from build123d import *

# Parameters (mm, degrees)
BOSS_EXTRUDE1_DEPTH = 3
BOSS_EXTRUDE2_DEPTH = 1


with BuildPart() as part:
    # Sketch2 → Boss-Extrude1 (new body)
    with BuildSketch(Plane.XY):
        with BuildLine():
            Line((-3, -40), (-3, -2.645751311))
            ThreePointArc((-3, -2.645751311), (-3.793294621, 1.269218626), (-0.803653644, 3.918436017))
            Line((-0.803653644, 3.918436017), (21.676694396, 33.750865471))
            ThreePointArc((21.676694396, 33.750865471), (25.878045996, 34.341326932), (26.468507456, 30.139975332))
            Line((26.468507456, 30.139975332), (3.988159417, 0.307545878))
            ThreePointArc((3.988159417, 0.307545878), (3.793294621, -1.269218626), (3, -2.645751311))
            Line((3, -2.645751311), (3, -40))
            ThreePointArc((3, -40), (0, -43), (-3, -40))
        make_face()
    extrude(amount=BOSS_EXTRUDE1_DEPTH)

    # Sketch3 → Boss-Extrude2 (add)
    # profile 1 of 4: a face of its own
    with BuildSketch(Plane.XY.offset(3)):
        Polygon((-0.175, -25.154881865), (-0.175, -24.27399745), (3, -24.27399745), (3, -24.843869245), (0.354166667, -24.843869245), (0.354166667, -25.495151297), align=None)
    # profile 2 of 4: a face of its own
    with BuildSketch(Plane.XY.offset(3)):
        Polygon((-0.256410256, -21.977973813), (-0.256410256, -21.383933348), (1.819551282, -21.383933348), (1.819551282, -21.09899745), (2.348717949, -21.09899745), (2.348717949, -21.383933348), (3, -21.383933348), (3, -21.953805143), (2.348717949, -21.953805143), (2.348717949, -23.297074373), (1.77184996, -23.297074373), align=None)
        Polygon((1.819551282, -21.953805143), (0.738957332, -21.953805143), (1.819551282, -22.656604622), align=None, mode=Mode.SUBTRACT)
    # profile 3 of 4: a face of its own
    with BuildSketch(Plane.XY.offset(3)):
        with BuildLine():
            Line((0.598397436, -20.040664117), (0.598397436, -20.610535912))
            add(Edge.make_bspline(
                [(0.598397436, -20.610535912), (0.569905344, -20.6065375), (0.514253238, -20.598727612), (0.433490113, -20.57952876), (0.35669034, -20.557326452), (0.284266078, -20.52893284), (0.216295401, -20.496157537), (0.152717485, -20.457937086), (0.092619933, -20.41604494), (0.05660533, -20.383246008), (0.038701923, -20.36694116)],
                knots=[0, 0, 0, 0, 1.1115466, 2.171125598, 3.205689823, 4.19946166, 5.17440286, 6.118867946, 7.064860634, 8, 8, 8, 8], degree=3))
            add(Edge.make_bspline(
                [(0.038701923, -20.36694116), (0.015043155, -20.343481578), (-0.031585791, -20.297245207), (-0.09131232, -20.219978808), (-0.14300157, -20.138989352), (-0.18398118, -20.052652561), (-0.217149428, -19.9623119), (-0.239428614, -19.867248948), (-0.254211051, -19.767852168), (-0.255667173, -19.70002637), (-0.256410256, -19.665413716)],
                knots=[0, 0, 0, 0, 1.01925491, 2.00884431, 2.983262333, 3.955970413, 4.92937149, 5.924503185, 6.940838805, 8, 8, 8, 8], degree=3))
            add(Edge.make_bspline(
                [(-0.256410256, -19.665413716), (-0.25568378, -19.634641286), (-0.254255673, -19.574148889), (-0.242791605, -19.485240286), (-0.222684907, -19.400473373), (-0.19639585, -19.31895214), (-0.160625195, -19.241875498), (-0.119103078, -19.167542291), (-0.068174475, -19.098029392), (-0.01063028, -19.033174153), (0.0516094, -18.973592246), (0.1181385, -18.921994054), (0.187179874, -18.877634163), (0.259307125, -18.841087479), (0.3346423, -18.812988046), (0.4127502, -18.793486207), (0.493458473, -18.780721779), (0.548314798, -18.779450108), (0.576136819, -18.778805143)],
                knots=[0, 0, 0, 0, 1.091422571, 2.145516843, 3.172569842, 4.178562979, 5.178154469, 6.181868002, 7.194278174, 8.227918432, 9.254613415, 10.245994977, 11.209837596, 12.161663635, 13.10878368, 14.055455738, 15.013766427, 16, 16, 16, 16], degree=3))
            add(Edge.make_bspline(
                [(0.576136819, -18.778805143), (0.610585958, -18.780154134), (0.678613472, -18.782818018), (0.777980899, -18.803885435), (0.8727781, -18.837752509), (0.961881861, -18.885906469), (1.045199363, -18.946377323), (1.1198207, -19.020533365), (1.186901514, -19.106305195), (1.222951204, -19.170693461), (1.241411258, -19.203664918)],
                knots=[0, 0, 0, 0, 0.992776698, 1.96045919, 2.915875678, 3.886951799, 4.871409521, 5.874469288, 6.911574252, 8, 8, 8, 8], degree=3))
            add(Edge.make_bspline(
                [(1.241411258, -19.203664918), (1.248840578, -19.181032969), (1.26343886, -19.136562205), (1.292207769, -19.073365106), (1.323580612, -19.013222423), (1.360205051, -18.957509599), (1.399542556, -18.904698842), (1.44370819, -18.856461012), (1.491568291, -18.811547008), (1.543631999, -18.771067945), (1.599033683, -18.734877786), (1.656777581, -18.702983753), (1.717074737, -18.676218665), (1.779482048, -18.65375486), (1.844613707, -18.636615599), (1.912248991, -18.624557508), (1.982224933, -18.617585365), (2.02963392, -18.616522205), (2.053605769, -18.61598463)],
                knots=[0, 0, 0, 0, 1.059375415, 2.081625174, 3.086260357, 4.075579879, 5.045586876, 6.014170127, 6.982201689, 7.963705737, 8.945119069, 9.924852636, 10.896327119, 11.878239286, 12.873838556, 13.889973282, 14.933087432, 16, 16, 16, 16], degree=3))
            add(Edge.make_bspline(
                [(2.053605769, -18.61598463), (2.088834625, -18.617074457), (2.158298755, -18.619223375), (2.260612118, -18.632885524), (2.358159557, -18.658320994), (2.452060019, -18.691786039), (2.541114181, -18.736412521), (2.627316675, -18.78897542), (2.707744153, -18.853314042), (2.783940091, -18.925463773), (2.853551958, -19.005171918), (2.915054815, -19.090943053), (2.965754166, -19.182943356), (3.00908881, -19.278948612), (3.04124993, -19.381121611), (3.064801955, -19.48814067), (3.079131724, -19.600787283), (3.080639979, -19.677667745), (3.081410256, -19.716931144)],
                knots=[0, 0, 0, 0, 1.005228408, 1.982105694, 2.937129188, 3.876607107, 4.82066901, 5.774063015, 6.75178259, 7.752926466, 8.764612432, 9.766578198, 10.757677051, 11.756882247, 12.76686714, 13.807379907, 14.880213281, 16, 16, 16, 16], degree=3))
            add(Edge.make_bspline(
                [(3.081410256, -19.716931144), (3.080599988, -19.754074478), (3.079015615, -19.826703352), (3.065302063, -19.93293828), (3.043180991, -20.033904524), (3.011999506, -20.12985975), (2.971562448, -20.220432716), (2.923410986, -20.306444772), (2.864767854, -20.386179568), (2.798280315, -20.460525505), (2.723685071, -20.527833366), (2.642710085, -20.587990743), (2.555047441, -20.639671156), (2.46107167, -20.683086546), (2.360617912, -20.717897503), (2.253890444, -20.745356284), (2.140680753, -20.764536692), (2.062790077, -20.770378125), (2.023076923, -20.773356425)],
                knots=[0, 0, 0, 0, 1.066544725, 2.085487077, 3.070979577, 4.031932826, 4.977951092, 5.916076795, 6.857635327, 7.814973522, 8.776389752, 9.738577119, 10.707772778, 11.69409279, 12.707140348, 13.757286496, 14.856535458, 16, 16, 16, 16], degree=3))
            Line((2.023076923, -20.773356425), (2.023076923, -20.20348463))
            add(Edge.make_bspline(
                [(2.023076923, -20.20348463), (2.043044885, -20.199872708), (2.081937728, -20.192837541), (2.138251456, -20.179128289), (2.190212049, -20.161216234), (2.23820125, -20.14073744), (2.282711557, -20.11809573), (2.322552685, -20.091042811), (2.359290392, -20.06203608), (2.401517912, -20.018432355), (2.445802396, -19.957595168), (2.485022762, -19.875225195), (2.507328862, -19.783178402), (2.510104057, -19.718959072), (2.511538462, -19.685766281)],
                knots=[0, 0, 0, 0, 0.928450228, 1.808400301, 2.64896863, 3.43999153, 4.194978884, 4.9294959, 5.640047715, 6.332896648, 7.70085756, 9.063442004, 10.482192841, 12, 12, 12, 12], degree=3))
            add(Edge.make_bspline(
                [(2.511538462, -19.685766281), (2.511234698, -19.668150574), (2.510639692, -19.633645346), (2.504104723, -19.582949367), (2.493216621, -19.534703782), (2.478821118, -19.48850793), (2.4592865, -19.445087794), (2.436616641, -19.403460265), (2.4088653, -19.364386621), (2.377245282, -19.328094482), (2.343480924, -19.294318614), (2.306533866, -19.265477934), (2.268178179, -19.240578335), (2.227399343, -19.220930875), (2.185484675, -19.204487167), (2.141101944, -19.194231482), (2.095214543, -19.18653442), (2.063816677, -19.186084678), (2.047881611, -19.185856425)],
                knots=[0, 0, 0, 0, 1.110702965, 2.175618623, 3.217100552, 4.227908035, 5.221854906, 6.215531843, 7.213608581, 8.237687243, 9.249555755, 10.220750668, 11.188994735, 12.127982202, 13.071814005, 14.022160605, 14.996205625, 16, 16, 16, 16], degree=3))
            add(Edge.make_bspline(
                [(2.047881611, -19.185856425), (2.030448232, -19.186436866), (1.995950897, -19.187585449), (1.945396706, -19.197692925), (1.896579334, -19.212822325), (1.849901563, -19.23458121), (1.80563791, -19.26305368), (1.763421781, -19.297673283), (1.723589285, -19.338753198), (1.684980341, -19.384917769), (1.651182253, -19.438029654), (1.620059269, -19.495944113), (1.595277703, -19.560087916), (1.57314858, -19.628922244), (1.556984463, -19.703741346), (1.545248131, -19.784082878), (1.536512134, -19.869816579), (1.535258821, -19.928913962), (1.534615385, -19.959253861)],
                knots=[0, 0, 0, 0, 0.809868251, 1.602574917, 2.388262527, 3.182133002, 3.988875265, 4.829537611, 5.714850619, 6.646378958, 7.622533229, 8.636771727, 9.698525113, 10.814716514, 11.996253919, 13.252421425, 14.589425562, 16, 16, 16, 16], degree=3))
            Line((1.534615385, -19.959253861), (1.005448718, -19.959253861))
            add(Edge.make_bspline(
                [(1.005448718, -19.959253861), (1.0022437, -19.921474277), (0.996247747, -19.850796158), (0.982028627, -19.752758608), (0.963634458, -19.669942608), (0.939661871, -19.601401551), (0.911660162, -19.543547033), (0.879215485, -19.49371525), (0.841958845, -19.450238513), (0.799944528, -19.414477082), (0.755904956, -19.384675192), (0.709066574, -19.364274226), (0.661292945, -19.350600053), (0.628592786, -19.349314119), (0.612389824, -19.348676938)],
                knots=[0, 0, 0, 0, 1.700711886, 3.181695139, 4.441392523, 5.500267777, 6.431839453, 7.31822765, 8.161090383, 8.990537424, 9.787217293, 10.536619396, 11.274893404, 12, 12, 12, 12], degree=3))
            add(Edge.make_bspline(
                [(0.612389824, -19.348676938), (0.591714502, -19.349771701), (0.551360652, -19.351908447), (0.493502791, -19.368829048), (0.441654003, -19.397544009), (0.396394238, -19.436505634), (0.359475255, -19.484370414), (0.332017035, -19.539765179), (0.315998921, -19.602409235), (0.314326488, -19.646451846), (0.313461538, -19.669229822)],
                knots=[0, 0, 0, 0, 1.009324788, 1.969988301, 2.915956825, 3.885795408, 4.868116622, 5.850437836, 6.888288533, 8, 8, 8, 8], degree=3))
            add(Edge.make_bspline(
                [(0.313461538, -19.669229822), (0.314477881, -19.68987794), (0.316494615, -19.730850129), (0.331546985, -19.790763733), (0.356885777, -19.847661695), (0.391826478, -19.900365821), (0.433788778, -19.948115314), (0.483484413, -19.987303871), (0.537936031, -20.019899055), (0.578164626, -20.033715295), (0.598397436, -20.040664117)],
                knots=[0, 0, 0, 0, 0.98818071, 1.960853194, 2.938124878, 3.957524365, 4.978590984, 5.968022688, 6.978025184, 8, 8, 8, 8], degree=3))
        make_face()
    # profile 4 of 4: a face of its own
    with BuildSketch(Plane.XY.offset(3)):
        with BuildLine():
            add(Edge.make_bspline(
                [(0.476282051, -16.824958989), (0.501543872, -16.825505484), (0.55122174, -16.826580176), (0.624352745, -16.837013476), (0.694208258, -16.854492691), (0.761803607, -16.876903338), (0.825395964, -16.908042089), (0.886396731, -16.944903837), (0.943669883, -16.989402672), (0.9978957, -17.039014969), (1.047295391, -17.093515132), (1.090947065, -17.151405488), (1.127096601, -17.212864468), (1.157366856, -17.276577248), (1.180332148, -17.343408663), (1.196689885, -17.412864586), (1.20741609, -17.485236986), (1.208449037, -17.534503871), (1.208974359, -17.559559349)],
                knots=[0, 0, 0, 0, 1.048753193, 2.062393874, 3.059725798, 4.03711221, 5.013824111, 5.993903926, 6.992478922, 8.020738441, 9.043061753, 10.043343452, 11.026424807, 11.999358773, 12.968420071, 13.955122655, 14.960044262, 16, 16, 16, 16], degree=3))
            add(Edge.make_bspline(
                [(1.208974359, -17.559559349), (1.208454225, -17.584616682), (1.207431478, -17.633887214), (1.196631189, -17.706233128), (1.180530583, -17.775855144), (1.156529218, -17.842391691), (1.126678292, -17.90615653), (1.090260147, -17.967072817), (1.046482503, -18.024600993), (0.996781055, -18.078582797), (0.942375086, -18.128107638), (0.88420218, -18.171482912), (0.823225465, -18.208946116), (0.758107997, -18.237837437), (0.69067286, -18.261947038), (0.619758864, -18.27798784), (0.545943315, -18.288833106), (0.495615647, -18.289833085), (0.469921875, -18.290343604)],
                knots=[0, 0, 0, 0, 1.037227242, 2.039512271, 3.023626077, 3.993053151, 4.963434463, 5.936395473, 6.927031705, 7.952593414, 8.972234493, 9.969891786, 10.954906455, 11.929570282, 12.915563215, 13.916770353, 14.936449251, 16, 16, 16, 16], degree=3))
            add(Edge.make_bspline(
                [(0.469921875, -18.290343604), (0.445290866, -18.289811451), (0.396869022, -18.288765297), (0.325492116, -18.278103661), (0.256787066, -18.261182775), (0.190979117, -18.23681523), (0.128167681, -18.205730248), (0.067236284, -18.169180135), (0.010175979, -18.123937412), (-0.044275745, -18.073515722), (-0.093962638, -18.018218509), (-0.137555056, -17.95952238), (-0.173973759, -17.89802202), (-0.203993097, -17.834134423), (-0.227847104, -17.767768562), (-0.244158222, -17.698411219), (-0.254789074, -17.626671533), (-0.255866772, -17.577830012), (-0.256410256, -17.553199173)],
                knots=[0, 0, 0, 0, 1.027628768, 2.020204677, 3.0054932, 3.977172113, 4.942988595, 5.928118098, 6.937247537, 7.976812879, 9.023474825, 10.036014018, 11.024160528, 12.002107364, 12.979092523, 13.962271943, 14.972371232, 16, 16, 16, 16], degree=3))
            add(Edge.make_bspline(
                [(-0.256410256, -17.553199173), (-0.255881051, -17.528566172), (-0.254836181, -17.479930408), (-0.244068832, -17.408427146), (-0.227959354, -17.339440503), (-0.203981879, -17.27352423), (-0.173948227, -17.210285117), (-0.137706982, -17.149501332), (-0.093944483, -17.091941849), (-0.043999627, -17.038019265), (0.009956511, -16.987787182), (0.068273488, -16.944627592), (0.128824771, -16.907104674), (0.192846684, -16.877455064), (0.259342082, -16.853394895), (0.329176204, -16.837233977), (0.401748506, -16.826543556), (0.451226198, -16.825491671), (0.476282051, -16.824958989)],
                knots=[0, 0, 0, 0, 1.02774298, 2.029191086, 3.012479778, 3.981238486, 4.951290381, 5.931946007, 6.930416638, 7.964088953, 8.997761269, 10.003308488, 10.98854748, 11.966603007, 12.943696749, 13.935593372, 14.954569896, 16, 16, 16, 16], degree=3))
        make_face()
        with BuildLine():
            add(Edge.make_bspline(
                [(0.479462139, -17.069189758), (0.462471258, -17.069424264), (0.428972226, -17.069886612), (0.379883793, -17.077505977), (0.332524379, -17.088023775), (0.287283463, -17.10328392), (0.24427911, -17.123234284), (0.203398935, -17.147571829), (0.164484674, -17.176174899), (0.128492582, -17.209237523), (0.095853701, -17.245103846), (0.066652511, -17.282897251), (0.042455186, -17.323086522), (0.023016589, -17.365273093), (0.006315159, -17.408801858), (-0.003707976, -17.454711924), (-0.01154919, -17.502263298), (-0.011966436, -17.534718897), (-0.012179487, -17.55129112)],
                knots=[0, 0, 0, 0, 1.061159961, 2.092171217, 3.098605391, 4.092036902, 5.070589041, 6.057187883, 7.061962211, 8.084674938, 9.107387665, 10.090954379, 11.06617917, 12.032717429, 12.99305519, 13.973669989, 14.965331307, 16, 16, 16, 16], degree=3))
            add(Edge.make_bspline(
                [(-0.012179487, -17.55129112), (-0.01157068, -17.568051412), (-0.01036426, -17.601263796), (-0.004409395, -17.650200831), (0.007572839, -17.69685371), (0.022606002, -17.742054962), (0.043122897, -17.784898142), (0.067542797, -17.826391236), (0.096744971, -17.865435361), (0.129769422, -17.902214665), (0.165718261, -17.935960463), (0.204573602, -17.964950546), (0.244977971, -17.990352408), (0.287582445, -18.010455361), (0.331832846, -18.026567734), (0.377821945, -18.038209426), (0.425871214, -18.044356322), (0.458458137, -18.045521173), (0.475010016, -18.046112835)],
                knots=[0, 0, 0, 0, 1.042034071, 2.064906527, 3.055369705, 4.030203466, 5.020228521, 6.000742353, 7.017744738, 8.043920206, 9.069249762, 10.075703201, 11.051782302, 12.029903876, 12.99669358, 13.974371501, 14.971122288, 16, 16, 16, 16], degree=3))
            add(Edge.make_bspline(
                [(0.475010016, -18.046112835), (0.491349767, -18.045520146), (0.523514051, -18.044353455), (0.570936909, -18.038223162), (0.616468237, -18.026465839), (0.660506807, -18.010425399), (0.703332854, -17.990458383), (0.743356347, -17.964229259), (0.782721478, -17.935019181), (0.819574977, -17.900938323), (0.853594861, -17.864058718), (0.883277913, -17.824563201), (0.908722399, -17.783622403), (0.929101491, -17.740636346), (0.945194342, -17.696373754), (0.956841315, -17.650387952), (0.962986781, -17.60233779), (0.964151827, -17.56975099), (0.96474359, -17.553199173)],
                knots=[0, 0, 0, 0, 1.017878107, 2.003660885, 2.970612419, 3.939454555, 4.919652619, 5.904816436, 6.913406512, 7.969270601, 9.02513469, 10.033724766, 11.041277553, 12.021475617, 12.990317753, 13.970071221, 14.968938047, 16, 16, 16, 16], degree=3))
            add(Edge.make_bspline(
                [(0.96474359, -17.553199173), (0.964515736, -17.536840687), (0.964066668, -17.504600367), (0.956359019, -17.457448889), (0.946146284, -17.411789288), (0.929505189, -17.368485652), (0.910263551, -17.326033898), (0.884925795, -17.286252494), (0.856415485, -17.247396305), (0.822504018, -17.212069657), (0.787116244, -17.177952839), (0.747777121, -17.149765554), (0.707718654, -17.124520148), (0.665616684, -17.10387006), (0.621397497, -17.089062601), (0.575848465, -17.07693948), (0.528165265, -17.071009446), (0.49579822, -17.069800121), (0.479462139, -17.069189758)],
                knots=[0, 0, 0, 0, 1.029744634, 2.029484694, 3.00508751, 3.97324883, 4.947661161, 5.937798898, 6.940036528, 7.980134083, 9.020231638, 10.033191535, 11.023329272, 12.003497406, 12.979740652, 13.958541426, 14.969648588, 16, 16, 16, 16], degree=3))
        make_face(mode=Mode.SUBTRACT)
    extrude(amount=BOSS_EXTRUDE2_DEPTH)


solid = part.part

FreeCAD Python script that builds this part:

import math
import FreeCAD as App
import Part
import Sketcher

V = App.Vector
Q = App.Units.Quantity

doc = App.newDocument("Part")
body = doc.addObject("PartDesign::Body", "Body")

sketch1 = body.newObject("Sketcher::SketchObject", "Sketch")
sketch1.AttachmentSupport = (doc.getObject("XY_Plane"), [""])
sketch1.MapMode = "FlatFace"
sketch1.addGeometry([
    Part.LineSegment(V(-3, -2.6, 0), V(-3, -40, 0)),
    Part.ArcOfCircle(Part.Circle(V(0, -40, 0), V(0, 0, 1), 3), math.radians(180), math.radians(360)),
    Part.LineSegment(V(3, -40, 0), V(3, -2.6, 0)),
    Part.ArcOfCircle(Part.Circle(V(0, 0, 0), V(0, 0, 1), 4), math.radians(-41), math.radians(4)),
    Part.LineSegment(V(4, 0.3, 0), V(26.5, 30.1, 0)),
    Part.ArcOfCircle(Part.Circle(V(24.1, 31.9, 0), V(0, 0, 1), 3), math.radians(-37), math.radians(143)),
    Part.LineSegment(V(21.7, 33.8, 0), V(-0.8, 3.9, 0)),
    Part.ArcOfCircle(Part.Circle(V(0, 0, 0), V(0, 0, 1), 4), math.radians(102), math.radians(221)),
], False)
sketch1.addConstraint([
    Sketcher.Constraint("Tangent", 0, 2, 1, 1),
    Sketcher.Constraint("Tangent", 1, 2, 2, 1),
    Sketcher.Constraint("Coincident", 2, 2, 3, 1),
    Sketcher.Constraint("Coincident", 3, 2, 4, 1),
    Sketcher.Constraint("Tangent", 4, 2, 5, 1),
    Sketcher.Constraint("Tangent", 5, 2, 6, 1),
    Sketcher.Constraint("Coincident", 6, 2, 7, 1),
    Sketcher.Constraint("Coincident", 7, 2, 0, 1),
    Sketcher.Constraint("Vertical", 0),
    Sketcher.Constraint("Vertical", 2),
    Sketcher.Constraint("Coincident", 3, 3, -1, 1),
    Sketcher.Constraint("Coincident", 7, 3, -1, 1),
    Sketcher.Constraint("Equal", 1, 5),
    Sketcher.Constraint("Equal", 3, 7),
    Sketcher.Constraint("PointOnObject", 1, 3, -2),
    Sketcher.Constraint("Parallel", 4, 6),
    Sketcher.Constraint("Equal", 4, 6),
    Sketcher.Constraint("Radius", 1, Q("3 mm")),
    Sketcher.Constraint("Radius", 3, Q("4 mm")),
    Sketcher.Constraint("Angle", 4, Q("53 deg")),
    Sketcher.Constraint("DistanceY", 1, 3, -1, 1, Q("40 mm")),
    Sketcher.Constraint("DistanceX", -1, 1, 5, 3, Q("24.072601 mm")),
])
pad1 = body.newObject("PartDesign::Pad", "Pad")
pad1.Profile = sketch1
pad1.Length = 3

sketch2 = body.newObject("Sketcher::SketchObject", "Sketch001")
sketch2.AttachmentSupport = (doc.getObject("XY_Plane"), [""])
sketch2.MapMode = "FlatFace"
sketch2.AttachmentOffset = App.Placement(V(0, 0, 3), App.Rotation())
sketch2.addGeometry([
    Part.LineSegment(V(-0.175, -24.273997, 0), V(-0.175, -25.154882, 0)),
    Part.LineSegment(V(-0.175, -25.154882, 0), V(0.354167, -25.495151, 0)),
    Part.LineSegment(V(0.354167, -25.495151, 0), V(0.354167, -24.843869, 0)),
    Part.LineSegment(V(0.354167, -24.843869, 0), V(3, -24.843869, 0)),
    Part.LineSegment(V(3, -24.843869, 0), V(3, -24.273997, 0)),
    Part.LineSegment(V(3, -24.273997, 0), V(-0.175, -24.273997, 0)),
    Part.LineSegment(V(-0.25641, -21.383933, 0), V(-0.25641, -21.977974, 0)),
    Part.LineSegment(V(-0.25641, -21.977974, 0), V(1.77185, -23.297074, 0)),
    Part.LineSegment(V(1.77185, -23.297074, 0), V(2.348718, -23.297074, 0)),
    Part.LineSegment(V(2.348718, -23.297074, 0), V(2.348718, -21.953805, 0)),
    Part.LineSegment(V(2.348718, -21.953805, 0), V(3, -21.953805, 0)),
    Part.LineSegment(V(3, -21.953805, 0), V(3, -21.383933, 0)),
    Part.LineSegment(V(3, -21.383933, 0), V(2.348718, -21.383933, 0)),
    Part.LineSegment(V(2.348718, -21.383933, 0), V(2.348718, -21.098997, 0)),
    Part.LineSegment(V(2.348718, -21.098997, 0), V(1.819551, -21.098997, 0)),
    Part.LineSegment(V(1.819551, -21.098997, 0), V(1.819551, -21.383933, 0)),
    Part.LineSegment(V(1.819551, -21.383933, 0), V(-0.25641, -21.383933, 0)),
    Part.LineSegment(V(1.819551, -21.953805, 0), V(1.819551, -22.656605, 0)),
    Part.LineSegment(V(1.819551, -22.656605, 0), V(0.738957, -21.953805, 0)),
    Part.LineSegment(V(0.738957, -21.953805, 0), V(1.819551, -21.953805, 0)),
    Part.LineSegment(V(0.598397, -20.610536, 0), V(0.598397, -20.040664, 0)),
    Part.BSplineCurve([V(0.313462, -19.66923, 0), V(0.314478, -19.689878, 0), V(0.316495, -19.73085, 0), V(0.331547, -19.790764, 0), V(0.356886, -19.847662, 0), V(0.391826, -19.900366, 0), V(0.433789, -19.948115, 0), V(0.483484, -19.987304, 0), V(0.537936, -20.019899, 0), V(0.578165, -20.033715, 0), V(0.598397, -20.040664, 0)], [4, 1, 1, 1, 1, 1, 1, 1, 4], [0, 0.98818071, 1.960853194, 2.938124878, 3.957524365, 4.978590984, 5.968022688, 6.978025184, 8], False, 3, [1, 1, 1, 1, 1, 1, 1, 1, 1, 1, 1], False),
    Part.BSplineCurve([V(0.61239, -19.348677, 0), V(0.591715, -19.349772, 0), V(0.551361, -19.351908, 0), V(0.493503, -19.368829, 0), V(0.441654, -19.397544, 0), V(0.396394, -19.436506, 0), V(0.359475, -19.48437, 0), V(0.332017, -19.539765, 0), V(0.315999, -19.602409, 0), V(0.314326, -19.646452, 0), V(0.313462, -19.66923, 0)], [4, 1, 1, 1, 1, 1, 1, 1, 4], [0, 1.009324788, 1.969988301, 2.915956825, 3.885795408, 4.868116622, 5.850437836, 6.888288533, 8], False, 3, [1, 1, 1, 1, 1, 1, 1, 1, 1, 1, 1], False),
    Part.BSplineCurve([V(1.005449, -19.959254, 0), V(1.002244, -19.921474, 0), V(0.996248, -19.850796, 0), V(0.982029, -19.752759, 0), V(0.963634, -19.669943, 0), V(0.939662, -19.601402, 0), V(0.91166, -19.543547, 0), V(0.879215, -19.493715, 0), V(0.841959, -19.450239, 0), V(0.799945, -19.414477, 0), V(0.755905, -19.384675, 0), V(0.709067, -19.364274, 0), V(0.661293, -19.3506, 0), V(0.628593, -19.349314, 0), V(0.61239, -19.348677, 0)], [4, 1, 1, 1, 1, 1, 1, 1, 1, 1, 1, 1, 4], [0, 1.700711886, 3.181695139, 4.441392523, 5.500267777, 6.431839453, 7.31822765, 8.161090383, 8.990537424, 9.787217293, 10.536619396, 11.274893404, 12], False, 3, [1, 1, 1, 1, 1, 1, 1, 1, 1, 1, 1, 1, 1, 1, 1], False),
    Part.LineSegment(V(1.005449, -19.959254, 0), V(1.534615, -19.959254, 0)),
    Part.BSplineCurve([V(2.047882, -19.185856, 0), V(2.030448, -19.186437, 0), V(1.995951, -19.187585, 0), V(1.945397, -19.197693, 0), V(1.896579, -19.212822, 0), V(1.849902, -19.234581, 0), V(1.805638, -19.263054, 0), V(1.763422, -19.297673, 0), V(1.723589, -19.338753, 0), V(1.68498, -19.384918, 0), V(1.651182, -19.43803, 0), V(1.620059, -19.495944, 0), V(1.595278, -19.560088, 0), V(1.573149, -19.628922, 0), V(1.556984, -19.703741, 0), V(1.545248, -19.784083, 0), V(1.536512, -19.869817, 0), V(1.535259, -19.928914, 0), V(1.534615, -19.959254, 0)], [4, 1, 1, 1, 1, 1, 1, 1, 1, 1, 1, 1, 1, 1, 1, 1, 4], [0, 0.809868251, 1.602574917, 2.388262527, 3.182133002, 3.988875265, 4.829537611, 5.714850619, 6.646378958, 7.622533229, 8.636771727, 9.698525113, 10.814716514, 11.996253919, 13.252421425, 14.589425562, 16], False, 3, [1, 1, 1, 1, 1, 1, 1, 1, 1, 1, 1, 1, 1, 1, 1, 1, 1, 1, 1], False),
    Part.BSplineCurve([V(2.511538, -19.685766, 0), V(2.511235, -19.668151, 0), V(2.51064, -19.633645, 0), V(2.504105, -19.582949, 0), V(2.493217, -19.534704, 0), V(2.478821, -19.488508, 0), V(2.459287, -19.445088, 0), V(2.436617, -19.40346, 0), V(2.408865, -19.364387, 0), V(2.377245, -19.328094, 0), V(2.343481, -19.294319, 0), V(2.306534, -19.265478, 0), V(2.268178, -19.240578, 0), V(2.227399, -19.220931, 0), V(2.185485, -19.204487, 0), V(2.141102, -19.194231, 0), V(2.095215, -19.186534, 0), V(2.063817, -19.186085, 0), V(2.047882, -19.185856, 0)], [4, 1, 1, 1, 1, 1, 1, 1, 1, 1, 1, 1, 1, 1, 1, 1, 4], [0, 1.110702965, 2.175618623, 3.217100552, 4.227908035, 5.221854906, 6.215531843, 7.213608581, 8.237687243, 9.249555755, 10.220750668, 11.188994735, 12.127982202, 13.071814005, 14.022160605, 14.996205625, 16], False, 3, [1, 1, 1, 1, 1, 1, 1, 1, 1, 1, 1, 1, 1, 1, 1, 1, 1, 1, 1], False),
    Part.BSplineCurve([V(2.023077, -20.203485, 0), V(2.043045, -20.199873, 0), V(2.081938, -20.192838, 0), V(2.138251, -20.179128, 0), V(2.190212, -20.161216, 0), V(2.238201, -20.140737, 0), V(2.282712, -20.118096, 0), V(2.322553, -20.091043, 0), V(2.35929, -20.062036, 0), V(2.401518, -20.018432, 0), V(2.445802, -19.957595, 0), V(2.485023, -19.875225, 0), V(2.507329, -19.783178, 0), V(2.510104, -19.718959, 0), V(2.511538, -19.685766, 0)], [4, 1, 1, 1, 1, 1, 1, 1, 1, 1, 1, 1, 4], [0, 0.928450228, 1.808400301, 2.64896863, 3.43999153, 4.194978884, 4.9294959, 5.640047715, 6.332896648, 7.70085756, 9.063442004, 10.482192841, 12], False, 3, [1, 1, 1, 1, 1, 1, 1, 1, 1, 1, 1, 1, 1, 1, 1], False),
    Part.LineSegment(V(2.023077, -20.203485, 0), V(2.023077, -20.773356, 0)),
    Part.BSplineCurve([V(3.08141, -19.716931, 0), V(3.0806, -19.754074, 0), V(3.079016, -19.826703, 0), V(3.065302, -19.932938, 0), V(3.043181, -20.033905, 0), V(3.012, -20.12986, 0), V(2.971562, -20.220433, 0), V(2.923411, -20.306445, 0), V(2.864768, -20.38618, 0), V(2.79828, -20.460526, 0), V(2.723685, -20.527833, 0), V(2.64271, -20.587991, 0), V(2.555047, -20.639671, 0), V(2.461072, -20.683087, 0), V(2.360618, -20.717898, 0), V(2.25389, -20.745356, 0), V(2.140681, -20.764537, 0), V(2.06279, -20.770378, 0), V(2.023077, -20.773356, 0)], [4, 1, 1, 1, 1, 1, 1, 1, 1, 1, 1, 1, 1, 1, 1, 1, 4], [0, 1.066544725, 2.085487077, 3.070979577, 4.031932826, 4.977951092, 5.916076795, 6.857635327, 7.814973522, 8.776389752, 9.738577119, 10.707772778, 11.69409279, 12.707140348, 13.757286496, 14.856535458, 16], False, 3, [1, 1, 1, 1, 1, 1, 1, 1, 1, 1, 1, 1, 1, 1, 1, 1, 1, 1, 1], False),
    Part.BSplineCurve([V(2.053606, -18.615985, 0), V(2.088835, -18.617074, 0), V(2.158299, -18.619223, 0), V(2.260612, -18.632886, 0), V(2.35816, -18.658321, 0), V(2.45206, -18.691786, 0), V(2.541114, -18.736413, 0), V(2.627317, -18.788975, 0), V(2.707744, -18.853314, 0), V(2.78394, -18.925464, 0), V(2.853552, -19.005172, 0), V(2.915055, -19.090943, 0), V(2.965754, -19.182943, 0), V(3.009089, -19.278949, 0), V(3.04125, -19.381122, 0), V(3.064802, -19.488141, 0), V(3.079132, -19.600787, 0), V(3.08064, -19.677668, 0), V(3.08141, -19.716931, 0)], [4, 1, 1, 1, 1, 1, 1, 1, 1, 1, 1, 1, 1, 1, 1, 1, 4], [0, 1.005228408, 1.982105694, 2.937129188, 3.876607107, 4.82066901, 5.774063015, 6.75178259, 7.752926466, 8.764612432, 9.766578198, 10.757677051, 11.756882247, 12.76686714, 13.807379907, 14.880213281, 16], False, 3, [1, 1, 1, 1, 1, 1, 1, 1, 1, 1, 1, 1, 1, 1, 1, 1, 1, 1, 1], False),
    Part.BSplineCurve([V(1.241411, -19.203665, 0), V(1.248841, -19.181033, 0), V(1.263439, -19.136562, 0), V(1.292208, -19.073365, 0), V(1.323581, -19.013222, 0), V(1.360205, -18.95751, 0), V(1.399543, -18.904699, 0), V(1.443708, -18.856461, 0), V(1.491568, -18.811547, 0), V(1.543632, -18.771068, 0), V(1.599034, -18.734878, 0), V(1.656778, -18.702984, 0), V(1.717075, -18.676219, 0), V(1.779482, -18.653755, 0), V(1.844614, -18.636616, 0), V(1.912249, -18.624558, 0), V(1.982225, -18.617585, 0), V(2.029634, -18.616522, 0), V(2.053606, -18.615985, 0)], [4, 1, 1, 1, 1, 1, 1, 1, 1, 1, 1, 1, 1, 1, 1, 1, 4], [0, 1.059375415, 2.081625174, 3.086260357, 4.075579879, 5.045586876, 6.014170127, 6.982201689, 7.963705737, 8.945119069, 9.924852636, 10.896327119, 11.878239286, 12.873838556, 13.889973282, 14.933087432, 16], False, 3, [1, 1, 1, 1, 1, 1, 1, 1, 1, 1, 1, 1, 1, 1, 1, 1, 1, 1, 1], False),
    Part.BSplineCurve([V(0.576137, -18.778805, 0), V(0.610586, -18.780154, 0), V(0.678613, -18.782818, 0), V(0.777981, -18.803885, 0), V(0.872778, -18.837753, 0), V(0.961882, -18.885906, 0), V(1.045199, -18.946377, 0), V(1.119821, -19.020533, 0), V(1.186902, -19.106305, 0), V(1.222951, -19.170693, 0), V(1.241411, -19.203665, 0)], [4, 1, 1, 1, 1, 1, 1, 1, 4], [0, 0.992776698, 1.96045919, 2.915875678, 3.886951799, 4.871409521, 5.874469288, 6.911574252, 8], False, 3, [1, 1, 1, 1, 1, 1, 1, 1, 1, 1, 1], False),
    Part.BSplineCurve([V(-0.25641, -19.665414, 0), V(-0.255684, -19.634641, 0), V(-0.254256, -19.574149, 0), V(-0.242792, -19.48524, 0), V(-0.222685, -19.400473, 0), V(-0.196396, -19.318952, 0), V(-0.160625, -19.241875, 0), V(-0.119103, -19.167542, 0), V(-0.068174, -19.098029, 0), V(-0.01063, -19.033174, 0), V(0.051609, -18.973592, 0), V(0.118138, -18.921994, 0), V(0.18718, -18.877634, 0), V(0.259307, -18.841087, 0), V(0.334642, -18.812988, 0), V(0.41275, -18.793486, 0), V(0.493458, -18.780722, 0), V(0.548315, -18.77945, 0), V(0.576137, -18.778805, 0)], [4, 1, 1, 1, 1, 1, 1, 1, 1, 1, 1, 1, 1, 1, 1, 1, 4], [0, 1.091422571, 2.145516843, 3.172569842, 4.178562979, 5.178154469, 6.181868002, 7.194278174, 8.227918432, 9.254613415, 10.245994977, 11.209837596, 12.161663635, 13.10878368, 14.055455738, 15.013766427, 16], False, 3, [1, 1, 1, 1, 1, 1, 1, 1, 1, 1, 1, 1, 1, 1, 1, 1, 1, 1, 1], False),
    Part.BSplineCurve([V(0.038702, -20.366941, 0), V(0.015043, -20.343482, 0), V(-0.031586, -20.297245, 0), V(-0.091312, -20.219979, 0), V(-0.143002, -20.138989, 0), V(-0.183981, -20.052653, 0), V(-0.217149, -19.962312, 0), V(-0.239429, -19.867249, 0), V(-0.254211, -19.767852, 0), V(-0.255667, -19.700026, 0), V(-0.25641, -19.665414, 0)], [4, 1, 1, 1, 1, 1, 1, 1, 4], [0, 1.01925491, 2.00884431, 2.983262333, 3.955970413, 4.92937149, 5.924503185, 6.940838805, 8], False, 3, [1, 1, 1, 1, 1, 1, 1, 1, 1, 1, 1], False),
    Part.BSplineCurve([V(0.598397, -20.610536, 0), V(0.569905, -20.606538, 0), V(0.514253, -20.598728, 0), V(0.43349, -20.579529, 0), V(0.35669, -20.557326, 0), V(0.284266, -20.528933, 0), V(0.216295, -20.496158, 0), V(0.152717, -20.457937, 0), V(0.09262, -20.416045, 0), V(0.056605, -20.383246, 0), V(0.038702, -20.366941, 0)], [4, 1, 1, 1, 1, 1, 1, 1, 4], [0, 1.1115466, 2.171125598, 3.205689823, 4.19946166, 5.17440286, 6.118867946, 7.064860634, 8], False, 3, [1, 1, 1, 1, 1, 1, 1, 1, 1, 1, 1], False),
    Part.BSplineCurve([V(0.476282, -16.824959, 0), V(0.501544, -16.825505, 0), V(0.551222, -16.82658, 0), V(0.624353, -16.837013, 0), V(0.694208, -16.854493, 0), V(0.761804, -16.876903, 0), V(0.825396, -16.908042, 0), V(0.886397, -16.944904, 0), V(0.94367, -16.989403, 0), V(0.997896, -17.039015, 0), V(1.047295, -17.093515, 0), V(1.090947, -17.151405, 0), V(1.127097, -17.212864, 0), V(1.157367, -17.276577, 0), V(1.180332, -17.343409, 0), V(1.19669, -17.412865, 0), V(1.207416, -17.485237, 0), V(1.208449, -17.534504, 0), V(1.208974, -17.559559, 0)], [4, 1, 1, 1, 1, 1, 1, 1, 1, 1, 1, 1, 1, 1, 1, 1, 4], [0, 1.048753193, 2.062393874, 3.059725798, 4.03711221, 5.013824111, 5.993903926, 6.992478922, 8.020738441, 9.043061753, 10.043343452, 11.026424807, 11.999358773, 12.968420071, 13.955122655, 14.960044262, 16], False, 3, [1, 1, 1, 1, 1, 1, 1, 1, 1, 1, 1, 1, 1, 1, 1, 1, 1, 1, 1], False),
    Part.BSplineCurve([V(-0.25641, -17.553199, 0), V(-0.255881, -17.528566, 0), V(-0.254836, -17.47993, 0), V(-0.244069, -17.408427, 0), V(-0.227959, -17.339441, 0), V(-0.203982, -17.273524, 0), V(-0.173948, -17.210285, 0), V(-0.137707, -17.149501, 0), V(-0.093944, -17.091942, 0), V(-0.044, -17.038019, 0), V(0.009957, -16.987787, 0), V(0.068273, -16.944628, 0), V(0.128825, -16.907105, 0), V(0.192847, -16.877455, 0), V(0.259342, -16.853395, 0), V(0.329176, -16.837234, 0), V(0.401749, -16.826544, 0), V(0.451226, -16.825492, 0), V(0.476282, -16.824959, 0)], [4, 1, 1, 1, 1, 1, 1, 1, 1, 1, 1, 1, 1, 1, 1, 1, 4], [0, 1.02774298, 2.029191086, 3.012479778, 3.981238486, 4.951290381, 5.931946007, 6.930416638, 7.964088953, 8.997761269, 10.003308488, 10.98854748, 11.966603007, 12.943696749, 13.935593372, 14.954569896, 16], False, 3, [1, 1, 1, 1, 1, 1, 1, 1, 1, 1, 1, 1, 1, 1, 1, 1, 1, 1, 1], False),
    Part.BSplineCurve([V(0.469922, -18.290344, 0), V(0.445291, -18.289811, 0), V(0.396869, -18.288765, 0), V(0.325492, -18.278104, 0), V(0.256787, -18.261183, 0), V(0.190979, -18.236815, 0), V(0.128168, -18.20573, 0), V(0.067236, -18.16918, 0), V(0.010176, -18.123937, 0), V(-0.044276, -18.073516, 0), V(-0.093963, -18.018219, 0), V(-0.137555, -17.959522, 0), V(-0.173974, -17.898022, 0), V(-0.203993, -17.834134, 0), V(-0.227847, -17.767769, 0), V(-0.244158, -17.698411, 0), V(-0.254789, -17.626672, 0), V(-0.255867, -17.57783, 0), V(-0.25641, -17.553199, 0)], [4, 1, 1, 1, 1, 1, 1, 1, 1, 1, 1, 1, 1, 1, 1, 1, 4], [0, 1.027628768, 2.020204677, 3.0054932, 3.977172113, 4.942988595, 5.928118098, 6.937247537, 7.976812879, 9.023474825, 10.036014018, 11.024160528, 12.002107364, 12.979092523, 13.962271943, 14.972371232, 16], False, 3, [1, 1, 1, 1, 1, 1, 1, 1, 1, 1, 1, 1, 1, 1, 1, 1, 1, 1, 1], False),
    Part.BSplineCurve([V(1.208974, -17.559559, 0), V(1.208454, -17.584617, 0), V(1.207431, -17.633887, 0), V(1.196631, -17.706233, 0), V(1.180531, -17.775855, 0), V(1.156529, -17.842392, 0), V(1.126678, -17.906157, 0), V(1.09026, -17.967073, 0), V(1.046483, -18.024601, 0), V(0.996781, -18.078583, 0), V(0.942375, -18.128108, 0), V(0.884202, -18.171483, 0), V(0.823225, -18.208946, 0), V(0.758108, -18.237837, 0), V(0.690673, -18.261947, 0), V(0.619759, -18.277988, 0), V(0.545943, -18.288833, 0), V(0.495616, -18.289833, 0), V(0.469922, -18.290344, 0)], [4, 1, 1, 1, 1, 1, 1, 1, 1, 1, 1, 1, 1, 1, 1, 1, 4], [0, 1.037227242, 2.039512271, 3.023626077, 3.993053151, 4.963434463, 5.936395473, 6.927031705, 7.952593414, 8.972234493, 9.969891786, 10.954906455, 11.929570282, 12.915563215, 13.916770353, 14.936449251, 16], False, 3, [1, 1, 1, 1, 1, 1, 1, 1, 1, 1, 1, 1, 1, 1, 1, 1, 1, 1, 1], False),
    Part.BSplineCurve([V(0.964744, -17.553199, 0), V(0.964516, -17.536841, 0), V(0.964067, -17.5046, 0), V(0.956359, -17.457449, 0), V(0.946146, -17.411789, 0), V(0.929505, -17.368486, 0), V(0.910264, -17.326034, 0), V(0.884926, -17.286252, 0), V(0.856415, -17.247396, 0), V(0.822504, -17.21207, 0), V(0.787116, -17.177953, 0), V(0.747777, -17.149766, 0), V(0.707719, -17.12452, 0), V(0.665617, -17.10387, 0), V(0.621397, -17.089063, 0), V(0.575848, -17.076939, 0), V(0.528165, -17.071009, 0), V(0.495798, -17.0698, 0), V(0.479462, -17.06919, 0)], [4, 1, 1, 1, 1, 1, 1, 1, 1, 1, 1, 1, 1, 1, 1, 1, 4], [0, 1.029744634, 2.029484694, 3.00508751, 3.97324883, 4.947661161, 5.937798898, 6.940036528, 7.980134083, 9.020231638, 10.033191535, 11.023329272, 12.003497406, 12.979740652, 13.958541426, 14.969648588, 16], False, 3, [1, 1, 1, 1, 1, 1, 1, 1, 1, 1, 1, 1, 1, 1, 1, 1, 1, 1, 1], False),
    Part.BSplineCurve([V(0.47501, -18.046113, 0), V(0.49135, -18.04552, 0), V(0.523514, -18.044353, 0), V(0.570937, -18.038223, 0), V(0.616468, -18.026466, 0), V(0.660507, -18.010425, 0), V(0.703333, -17.990458, 0), V(0.743356, -17.964229, 0), V(0.782721, -17.935019, 0), V(0.819575, -17.900938, 0), V(0.853595, -17.864059, 0), V(0.883278, -17.824563, 0), V(0.908722, -17.783622, 0), V(0.929101, -17.740636, 0), V(0.945194, -17.696374, 0), V(0.956841, -17.650388, 0), V(0.962987, -17.602338, 0), V(0.964152, -17.569751, 0), V(0.964744, -17.553199, 0)], [4, 1, 1, 1, 1, 1, 1, 1, 1, 1, 1, 1, 1, 1, 1, 1, 4], [0, 1.017878107, 2.003660885, 2.970612419, 3.939454555, 4.919652619, 5.904816436, 6.913406512, 7.969270601, 9.02513469, 10.033724766, 11.041277553, 12.021475617, 12.990317753, 13.970071221, 14.968938047, 16], False, 3, [1, 1, 1, 1, 1, 1, 1, 1, 1, 1, 1, 1, 1, 1, 1, 1, 1, 1, 1], False),
    Part.BSplineCurve([V(-0.012179, -17.551291, 0), V(-0.011571, -17.568051, 0), V(-0.010364, -17.601264, 0), V(-0.004409, -17.650201, 0), V(0.007573, -17.696854, 0), V(0.022606, -17.742055, 0), V(0.043123, -17.784898, 0), V(0.067543, -17.826391, 0), V(0.096745, -17.865435, 0), V(0.129769, -17.902215, 0), V(0.165718, -17.93596, 0), V(0.204574, -17.964951, 0), V(0.244978, -17.990352, 0), V(0.287582, -18.010455, 0), V(0.331833, -18.026568, 0), V(0.377822, -18.038209, 0), V(0.425871, -18.044356, 0), V(0.458458, -18.045521, 0), V(0.47501, -18.046113, 0)], [4, 1, 1, 1, 1, 1, 1, 1, 1, 1, 1, 1, 1, 1, 1, 1, 4], [0, 1.042034071, 2.064906527, 3.055369705, 4.030203466, 5.020228521, 6.000742353, 7.017744738, 8.043920206, 9.069249762, 10.075703201, 11.051782302, 12.029903876, 12.99669358, 13.974371501, 14.971122288, 16], False, 3, [1, 1, 1, 1, 1, 1, 1, 1, 1, 1, 1, 1, 1, 1, 1, 1, 1, 1, 1], False),
    Part.BSplineCurve([V(0.479462, -17.06919, 0), V(0.462471, -17.069424, 0), V(0.428972, -17.069887, 0), V(0.379884, -17.077506, 0), V(0.332524, -17.088024, 0), V(0.287283, -17.103284, 0), V(0.244279, -17.123234, 0), V(0.203399, -17.147572, 0), V(0.164485, -17.176175, 0), V(0.128493, -17.209238, 0), V(0.095854, -17.245104, 0), V(0.066653, -17.282897, 0), V(0.042455, -17.323087, 0), V(0.023017, -17.365273, 0), V(0.006315, -17.408802, 0), V(-0.003708, -17.454712, 0), V(-0.011549, -17.502263, 0), V(-0.011966, -17.534719, 0), V(-0.012179, -17.551291, 0)], [4, 1, 1, 1, 1, 1, 1, 1, 1, 1, 1, 1, 1, 1, 1, 1, 4], [0, 1.061159961, 2.092171217, 3.098605391, 4.092036902, 5.070589041, 6.057187883, 7.061962211, 8.084674938, 9.107387665, 10.090954379, 11.06617917, 12.032717429, 12.99305519, 13.973669989, 14.965331307, 16], False, 3, [1, 1, 1, 1, 1, 1, 1, 1, 1, 1, 1, 1, 1, 1, 1, 1, 1, 1, 1], False),
], False)
sketch2.addConstraint([
    Sketcher.Constraint("Block", 21),
    Sketcher.Constraint("Block", 22),
    Sketcher.Constraint("Block", 23),
    Sketcher.Constraint("Block", 25),
    Sketcher.Constraint("Block", 26),
    Sketcher.Constraint("Block", 27),
    Sketcher.Constraint("Block", 29),
    Sketcher.Constraint("Block", 30),
    Sketcher.Constraint("Block", 31),
    Sketcher.Constraint("Block", 32),
    Sketcher.Constraint("Block", 33),
    Sketcher.Constraint("Block", 34),
    Sketcher.Constraint("Block", 35),
    Sketcher.Constraint("Block", 36),
    Sketcher.Constraint("Block", 37),
    Sketcher.Constraint("Block", 38),
    Sketcher.Constraint("Block", 39),
    Sketcher.Constraint("Block", 40),
    Sketcher.Constraint("Block", 41),
    Sketcher.Constraint("Block", 42),
    Sketcher.Constraint("Block", 43),
    Sketcher.Constraint("Coincident", 0, 2, 1, 1),
    Sketcher.Constraint("Coincident", 1, 2, 2, 1),
    Sketcher.Constraint("Coincident", 2, 2, 3, 1),
    Sketcher.Constraint("Coincident", 3, 2, 4, 1),
    Sketcher.Constraint("Coincident", 4, 2, 5, 1),
    Sketcher.Constraint("Coincident", 5, 2, 0, 1),
    Sketcher.Constraint("Coincident", 6, 2, 7, 1),
    Sketcher.Constraint("Coincident", 7, 2, 8, 1),
    Sketcher.Constraint("Coincident", 8, 2, 9, 1),
    Sketcher.Constraint("Coincident", 9, 2, 10, 1),
    Sketcher.Constraint("Coincident", 10, 2, 11, 1),
    Sketcher.Constraint("Coincident", 11, 2, 12, 1),
    Sketcher.Constraint("Coincident", 12, 2, 13, 1),
    Sketcher.Constraint("Coincident", 13, 2, 14, 1),
    Sketcher.Constraint("Coincident", 14, 2, 15, 1),
    Sketcher.Constraint("Coincident", 15, 2, 16, 1),
    Sketcher.Constraint("Coincident", 16, 2, 6, 1),
    Sketcher.Constraint("Coincident", 17, 2, 18, 1),
    Sketcher.Constraint("Coincident", 18, 2, 19, 1),
    Sketcher.Constraint("Coincident", 19, 2, 17, 1),
    Sketcher.Constraint("Coincident", 20, 2, 21, 2),
    Sketcher.Constraint("Coincident", 23, 1, 24, 1),
    Sketcher.Constraint("Coincident", 24, 2, 25, 2),
    Sketcher.Constraint("Coincident", 27, 1, 28, 1),
    Sketcher.Constraint("Coincident", 28, 2, 29, 2),
    Sketcher.Constraint("Coincident", 35, 1, 20, 1),
    Sketcher.Constraint("Vertical", 0),
    Sketcher.Constraint("Vertical", 2),
    Sketcher.Constraint("Horizontal", 3),
    Sketcher.Constraint("Vertical", 4),
    Sketcher.Constraint("Horizontal", 5),
    Sketcher.Constraint("Vertical", 6),
    Sketcher.Constraint("Horizontal", 8),
    Sketcher.Constraint("Vertical", 9),
    Sketcher.Constraint("Horizontal", 10),
    Sketcher.Constraint("Vertical", 11),
    Sketcher.Constraint("Horizontal", 12),
    Sketcher.Constraint("Vertical", 13),
    Sketcher.Constraint("Horizontal", 14),
    Sketcher.Constraint("Vertical", 15),
    Sketcher.Constraint("Horizontal", 16),
    Sketcher.Constraint("Vertical", 17),
    Sketcher.Constraint("Horizontal", 19),
    Sketcher.Constraint("DistanceX", -1, 1, 3, 2, Q("3 mm")),
    Sketcher.Constraint("DistanceX", -1, 1, 10, 2, Q("3 mm")),
    Sketcher.Constraint("DistanceX", 5, 2, 5, 1, Q("3.175 mm")),
    Sketcher.Constraint("DistanceY", 17, 2, 17, 1, Q("0.702799 mm")),
    Sketcher.Constraint("DistanceX", 16, 2, 16, 1, Q("2.075962 mm")),
    Sketcher.Constraint("DistanceY", 4, 1, 4, 2, Q("0.569872 mm")),
    Sketcher.Constraint("DistanceY", 6, 2, 6, 1, Q("0.59404 mm")),
    Sketcher.Constraint("DistanceY", 9, 1, 9, 2, Q("1.343269 mm")),
    Sketcher.Constraint("DistanceY", 11, 1, 11, 2, Q("0.569872 mm")),
    Sketcher.Constraint("DistanceY", 7, 2, 6, 2, Q("1.319101 mm")),
    Sketcher.Constraint("DistanceX", 7, 2, 17, 2, Q("0.047701 mm")),
    Sketcher.Constraint("DistanceY", 17, 2, 9, 2, Q("0.702799 mm")),
    Sketcher.Constraint("DistanceX", 3, 1, 3, 2, Q("2.645833 mm")),
    Sketcher.Constraint("DistanceX", 8, 1, 8, 2, Q("0.576868 mm")),
    Sketcher.Constraint("DistanceX", 10, 1, 10, 2, Q("0.651282 mm")),
    Sketcher.Constraint("DistanceX", 12, 2, 12, 1, Q("0.651282 mm")),
    Sketcher.Constraint("DistanceX", 14, 2, 14, 1, Q("0.529167 mm")),
    Sketcher.Constraint("DistanceX", 19, 1, 19, 2, Q("1.080594 mm")),
    Sketcher.Constraint("DistanceY", 0, 2, 0, 1, Q("0.880884 mm")),
    Sketcher.Constraint("DistanceY", 2, 1, 2, 2, Q("0.651282 mm")),
    Sketcher.Constraint("DistanceY", 13, 1, 13, 2, Q("0.284936 mm")),
    Sketcher.Constraint("DistanceY", 0, 2, -1, 1, Q("25.154882 mm")),
    Sketcher.Constraint("DistanceY", 0, 2, 6, 2, Q("3.176908 mm")),
])
pad2 = body.newObject("PartDesign::Pad", "Pad001")
pad2.Profile = sketch2
pad2.Length = 1

doc.recompute()
